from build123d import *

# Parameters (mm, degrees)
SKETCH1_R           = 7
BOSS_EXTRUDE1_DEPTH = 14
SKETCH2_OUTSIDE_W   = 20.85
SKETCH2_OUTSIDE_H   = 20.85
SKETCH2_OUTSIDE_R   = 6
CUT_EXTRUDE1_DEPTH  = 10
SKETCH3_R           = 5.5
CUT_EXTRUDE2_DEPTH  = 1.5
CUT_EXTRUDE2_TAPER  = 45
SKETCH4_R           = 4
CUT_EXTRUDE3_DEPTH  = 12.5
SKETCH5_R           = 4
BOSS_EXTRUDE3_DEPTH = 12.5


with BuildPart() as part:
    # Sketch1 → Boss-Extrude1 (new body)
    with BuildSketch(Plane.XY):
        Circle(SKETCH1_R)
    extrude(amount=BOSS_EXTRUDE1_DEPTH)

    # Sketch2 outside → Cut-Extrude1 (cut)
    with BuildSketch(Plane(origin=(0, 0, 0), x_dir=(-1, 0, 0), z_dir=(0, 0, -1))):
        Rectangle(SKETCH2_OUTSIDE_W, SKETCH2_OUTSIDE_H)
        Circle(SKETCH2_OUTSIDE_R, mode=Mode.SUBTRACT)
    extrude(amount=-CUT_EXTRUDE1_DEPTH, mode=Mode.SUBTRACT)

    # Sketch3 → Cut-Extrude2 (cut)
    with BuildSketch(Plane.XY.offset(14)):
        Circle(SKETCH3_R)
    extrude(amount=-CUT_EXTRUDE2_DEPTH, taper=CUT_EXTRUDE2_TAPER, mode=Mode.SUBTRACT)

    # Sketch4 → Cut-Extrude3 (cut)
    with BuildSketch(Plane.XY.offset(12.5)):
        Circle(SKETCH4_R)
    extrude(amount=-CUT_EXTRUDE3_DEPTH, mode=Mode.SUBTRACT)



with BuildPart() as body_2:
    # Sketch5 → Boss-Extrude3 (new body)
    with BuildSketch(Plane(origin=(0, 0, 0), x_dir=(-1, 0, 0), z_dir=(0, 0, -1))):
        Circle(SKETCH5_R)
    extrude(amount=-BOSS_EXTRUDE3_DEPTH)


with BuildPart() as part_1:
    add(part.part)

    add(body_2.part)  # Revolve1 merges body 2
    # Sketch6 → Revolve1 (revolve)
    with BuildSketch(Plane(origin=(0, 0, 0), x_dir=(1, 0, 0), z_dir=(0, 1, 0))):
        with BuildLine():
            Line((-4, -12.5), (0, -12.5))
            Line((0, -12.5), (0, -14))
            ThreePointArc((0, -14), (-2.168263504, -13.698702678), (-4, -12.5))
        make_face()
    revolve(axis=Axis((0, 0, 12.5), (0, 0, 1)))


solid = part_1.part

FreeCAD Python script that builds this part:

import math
import FreeCAD as App
import Part
import Sketcher
Q = App.Units.Quantity


def add_polygon(sketch, points):
    """Adds a closed chain of lines whose ends are joined by coincident constraints."""
    first, n = sketch.GeometryCount, len(points)
    for a, b in zip(points, points[1:] + points[:1]):
        sketch.addGeometry(Part.LineSegment(App.Vector(*a, 0), App.Vector(*b, 0)), False)
    for i in range(n):
        sketch.addConstraint(Sketcher.Constraint("Coincident", first + i, 2, first + (i + 1) % n, 1))

doc = App.newDocument("Part")
body = doc.addObject("PartDesign::Body", "Body")

# Sketch on XY plane
sketch1 = body.newObject("Sketcher::SketchObject", "Sketch")
sketch1.AttachmentSupport = (doc.getObject("XY_Plane"), [""])
sketch1.MapMode = "FlatFace"
sketch1.addGeometry(Part.Circle(App.Vector(0, 0, 0), App.Vector(0, 0, 1), 7), False)
sketch1.addConstraint([
    Sketcher.Constraint("Coincident", 0, 3, -1, 1),
    Sketcher.Constraint("Diameter", 0, Q("14 mm")),
])
pad1 = body.newObject("PartDesign::Pad", "Pad")
pad1.Profile = sketch1
pad1.Length = 14

# Sketch on XY plane
sketch2 = body.newObject("Sketcher::SketchObject", "Sketch001")
sketch2.AttachmentSupport = (doc.getObject("XY_Plane"), [""])
sketch2.MapMode = "FlatFace"
add_polygon(sketch2, [(10, 10), (10, -10), (-10, -10), (-10, 10)])  # lines 0-3
sketch2.addGeometry(Part.Circle(App.Vector(0, 0, 0), App.Vector(0, 0, 1), 6), False)  # 4
sketch2.addConstraint([
    Sketcher.Constraint("Vertical", 0),
    Sketcher.Constraint("Horizontal", 1),
    Sketcher.Constraint("Vertical", 2),
    Sketcher.Constraint("Horizontal", 3),
    Sketcher.Constraint("Coincident", 4, 3, -1, 1),
    Sketcher.Constraint("Symmetric", 0, 2, 2, 2, -1, 1),
    Sketcher.Constraint("Equal", 3, 0),
    Sketcher.Constraint("Diameter", 4, Q("12 mm")),
    Sketcher.Constraint("DistanceX", 1, 2, 1, 1, Q("20.85 mm")),
])
pocket1 = body.newObject("PartDesign::Pocket", "Pocket")
pocket1.Profile = sketch2
pocket1.Length = 10
pocket1.Reversed = True

# Sketch on XY plane
sketch3 = body.newObject("Sketcher::SketchObject", "Sketch002")
sketch3.AttachmentSupport = (doc.getObject("XY_Plane"), [""])
sketch3.MapMode = "FlatFace"
sketch3.AttachmentOffset = App.Placement(App.Vector(0, 0, 14), App.Rotation())
sketch3.addGeometry(Part.Circle(App.Vector(0, 0, 0), App.Vector(0, 0, 1), 6), False)
sketch3.addConstraint([
    Sketcher.Constraint("Coincident", 0, 3, -1, 1),
    Sketcher.Constraint("Diameter", 0, Q("11 mm")),
])
pocket2 = body.newObject("PartDesign::Pocket", "Pocket001")
pocket2.Profile = sketch3
pocket2.Length = 1.5
pocket2.TaperAngle = -45

# Sketch on XY plane
sketch4 = body.newObject("Sketcher::SketchObject", "Sketch003")
sketch4.AttachmentSupport = (doc.getObject("XY_Plane"), [""])
sketch4.MapMode = "FlatFace"
sketch4.AttachmentOffset = App.Placement(App.Vector(0, 0, 12.5), App.Rotation())
sketch4.addGeometry(Part.Circle(App.Vector(0, 0, 0), App.Vector(0, 0, 1), 4), False)
sketch4.addConstraint([
    Sketcher.Constraint("Coincident", 0, 3, -1, 1),
    Sketcher.Constraint("Diameter", 0, Q("8 mm")),
])
pocket3 = body.newObject("PartDesign::Pocket", "Pocket002")
pocket3.Profile = sketch4
pocket3.Length = 12.5
body2 = doc.addObject("PartDesign::Body", "Body001")

# Sketch on XY plane
sketch5 = body2.newObject("Sketcher::SketchObject", "Sketch004")
sketch5.AttachmentSupport = (doc.getObject("XY_Plane001"), [""])
sketch5.MapMode = "FlatFace"
sketch5.addGeometry(Part.Circle(App.Vector(0, 0, 0), App.Vector(0, 0, 1), 4), False)
sketch5.addConstraint([
    Sketcher.Constraint("Coincident", 0, 3, -1, 1),
    Sketcher.Constraint("Diameter", 0, Q("8 mm")),
])
pad2 = body2.newObject("PartDesign::Pad", "Pad001")
pad2.Profile = sketch5
pad2.Length = 12.5
doc.recompute()

boolean = body.newObject("PartDesign::Boolean", "Boolean")
boolean.Type = "Fuse"
boolean.addObjects([body2])

# Sketch on XZ plane
sketch6 = body.newObject("Sketcher::SketchObject", "Sketch005")
sketch6.AttachmentSupport = (doc.getObject("XZ_Plane"), [""])
sketch6.MapMode = "FlatFace"
sketch6.addGeometry([
    Part.LineSegment(App.Vector(0, 12.5, 0), App.Vector(-4, 12.5, 0)),
    Part.ArcOfCircle(Part.Circle(App.Vector(-0.4, 9, 0), App.Vector(0, 0, 1), 5), math.radians(85), math.radians(136)),
    Part.LineSegment(App.Vector(0, 14, 0), App.Vector(0, 12.5, 0)),
], False)
sketch6.addConstraint([
    Sketcher.Constraint("Coincident", 0, 2, 1, 2),
    Sketcher.Constraint("Coincident", 1, 1, 2, 1),
    Sketcher.Constraint("Coincident", 2, 2, 0, 1),
    Sketcher.Constraint("Horizontal", 0),
    Sketcher.Constraint("Vertical", 2),
    Sketcher.Constraint("PointOnObject", 1, 1, -2),
    Sketcher.Constraint("Radius", 1, Q("5 mm")),
    Sketcher.Constraint("DistanceX", 0, 2, 0, 1, Q("4 mm")),
    Sketcher.Constraint("DistanceY", 2, 2, 2, 1, Q("1.5 mm")),
    Sketcher.Constraint("DistanceY", -1, 1, 1, 1, Q("14 mm")),
])
revolution = body.newObject("PartDesign::Revolution", "Revolution")
revolution.Profile = sketch6
revolution.ReferenceAxis = (sketch6, ["V_Axis"])
revolution.Angle = 360

doc.recompute()
